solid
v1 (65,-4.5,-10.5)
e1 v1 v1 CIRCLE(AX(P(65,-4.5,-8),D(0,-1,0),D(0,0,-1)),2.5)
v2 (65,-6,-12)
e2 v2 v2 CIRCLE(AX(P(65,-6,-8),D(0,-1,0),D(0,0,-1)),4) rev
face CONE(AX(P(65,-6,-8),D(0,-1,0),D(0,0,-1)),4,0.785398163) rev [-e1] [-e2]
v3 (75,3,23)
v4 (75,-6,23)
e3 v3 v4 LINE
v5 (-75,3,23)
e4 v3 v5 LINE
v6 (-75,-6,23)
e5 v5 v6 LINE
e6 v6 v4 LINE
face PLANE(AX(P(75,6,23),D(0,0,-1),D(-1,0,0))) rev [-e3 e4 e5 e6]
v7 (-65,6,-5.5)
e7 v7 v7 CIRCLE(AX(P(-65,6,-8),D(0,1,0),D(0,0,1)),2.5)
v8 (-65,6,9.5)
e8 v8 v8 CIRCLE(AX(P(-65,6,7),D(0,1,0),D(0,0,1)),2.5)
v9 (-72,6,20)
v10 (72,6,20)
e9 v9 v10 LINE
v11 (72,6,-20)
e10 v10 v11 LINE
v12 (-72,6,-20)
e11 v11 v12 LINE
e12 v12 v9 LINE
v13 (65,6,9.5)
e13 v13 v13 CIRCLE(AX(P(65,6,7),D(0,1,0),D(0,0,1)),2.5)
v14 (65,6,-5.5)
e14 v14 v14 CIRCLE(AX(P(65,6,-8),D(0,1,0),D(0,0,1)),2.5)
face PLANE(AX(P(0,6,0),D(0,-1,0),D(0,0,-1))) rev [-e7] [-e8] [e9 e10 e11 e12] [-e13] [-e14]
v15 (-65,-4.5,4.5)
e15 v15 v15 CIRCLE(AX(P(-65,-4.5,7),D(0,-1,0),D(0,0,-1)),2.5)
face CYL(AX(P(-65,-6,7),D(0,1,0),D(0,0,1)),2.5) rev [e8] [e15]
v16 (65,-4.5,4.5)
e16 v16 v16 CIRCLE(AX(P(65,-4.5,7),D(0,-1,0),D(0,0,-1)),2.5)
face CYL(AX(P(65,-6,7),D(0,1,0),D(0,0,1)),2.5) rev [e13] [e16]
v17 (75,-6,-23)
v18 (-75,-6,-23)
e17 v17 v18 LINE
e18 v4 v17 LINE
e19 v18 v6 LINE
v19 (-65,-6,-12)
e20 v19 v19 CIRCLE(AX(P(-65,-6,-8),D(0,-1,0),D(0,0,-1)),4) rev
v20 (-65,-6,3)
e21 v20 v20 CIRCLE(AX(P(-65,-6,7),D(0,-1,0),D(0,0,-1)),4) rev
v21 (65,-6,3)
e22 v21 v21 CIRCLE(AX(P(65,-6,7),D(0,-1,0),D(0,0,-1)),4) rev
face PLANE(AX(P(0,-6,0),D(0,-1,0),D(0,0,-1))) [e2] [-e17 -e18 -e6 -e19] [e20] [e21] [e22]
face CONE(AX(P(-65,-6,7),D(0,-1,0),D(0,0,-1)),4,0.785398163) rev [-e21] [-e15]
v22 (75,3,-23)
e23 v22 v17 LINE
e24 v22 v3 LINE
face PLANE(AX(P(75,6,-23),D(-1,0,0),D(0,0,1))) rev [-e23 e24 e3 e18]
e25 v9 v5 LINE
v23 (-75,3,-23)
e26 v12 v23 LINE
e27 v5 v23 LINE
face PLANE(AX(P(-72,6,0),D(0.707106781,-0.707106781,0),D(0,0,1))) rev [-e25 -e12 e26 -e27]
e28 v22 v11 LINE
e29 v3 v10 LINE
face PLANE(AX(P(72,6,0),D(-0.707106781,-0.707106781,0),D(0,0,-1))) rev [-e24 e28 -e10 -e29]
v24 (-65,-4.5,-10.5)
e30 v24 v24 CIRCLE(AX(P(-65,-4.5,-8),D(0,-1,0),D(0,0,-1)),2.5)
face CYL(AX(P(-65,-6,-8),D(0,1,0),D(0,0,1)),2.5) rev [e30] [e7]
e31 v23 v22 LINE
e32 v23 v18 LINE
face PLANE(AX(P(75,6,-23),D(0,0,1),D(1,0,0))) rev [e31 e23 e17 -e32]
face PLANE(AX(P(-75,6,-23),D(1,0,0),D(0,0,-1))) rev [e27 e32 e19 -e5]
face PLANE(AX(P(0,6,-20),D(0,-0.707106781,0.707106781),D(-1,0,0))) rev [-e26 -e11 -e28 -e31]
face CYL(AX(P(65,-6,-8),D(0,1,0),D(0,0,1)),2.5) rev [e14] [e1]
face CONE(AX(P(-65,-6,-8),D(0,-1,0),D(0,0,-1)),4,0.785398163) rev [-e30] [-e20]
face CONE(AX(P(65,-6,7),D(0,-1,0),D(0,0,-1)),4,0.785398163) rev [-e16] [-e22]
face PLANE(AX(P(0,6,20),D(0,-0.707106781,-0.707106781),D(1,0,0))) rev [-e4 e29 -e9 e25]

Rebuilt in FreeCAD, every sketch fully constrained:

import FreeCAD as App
import Part
import Sketcher

V = App.Vector


def edges_at(feature, points):
    """Names of the edges that pass closest to the given points."""
    edges = feature.Shape.Edges
    near = lambda p: min(range(len(edges)), key=lambda i: edges[i].distToShape(Part.Vertex(*p))[0])
    return sorted({f"Edge{near(p) + 1}" for p in points})

doc = App.newDocument("Part")
params = doc.addObject("Spreadsheet::Sheet", "Params")
for row, (alias, value) in enumerate([
    ("sketch1_width", "150 mm"),
    ("sketch1_height", "46 mm"),
    ("pad1_length", "12 mm"),
    ("chamfer_size", "3 mm"),
    ("sketch2_diameter", "5 mm"),
    ("chamfer2_size", "1.5 mm"),
], start=1):
    params.set(f"A{row}", alias)
    params.set(f"B{row}", "=" + value)
    params.setAlias(f"B{row}", alias)

body = doc.addObject("PartDesign::Body", "Body")

sketch1 = doc.addObject("Sketcher::SketchObject", "Sketch")
body.addObject(sketch1)
sketch1.AttachmentSupport = (doc.XZ_Plane, [""])
sketch1.MapMode = "FlatFace"
sketch1.addGeometry([
    Part.LineSegment(V(-75, -23, 0), V(-75, 23, 0)),
    Part.LineSegment(V(-75, 23, 0), V(75, 23, 0)),
    Part.LineSegment(V(75, 23, 0), V(75, -23, 0)),
    Part.LineSegment(V(75, -23, 0), V(-75, -23, 0)),
], False)
sketch1.addConstraint([
    Sketcher.Constraint("Coincident", 0, 2, 1, 1),
    Sketcher.Constraint("Coincident", 1, 2, 2, 1),
    Sketcher.Constraint("Coincident", 2, 2, 3, 1),
    Sketcher.Constraint("Coincident", 3, 2, 0, 1),
    Sketcher.Constraint("Vertical", 0),
    Sketcher.Constraint("Horizontal", 1),
    Sketcher.Constraint("Vertical", 2),
    Sketcher.Constraint("Horizontal", 3),
    Sketcher.Constraint("Symmetric", 0, 2, 2, 2, -1, 1),
    Sketcher.Constraint("DistanceX", 1, 1, 1, 2, 150.0),
    Sketcher.Constraint("DistanceY", 0, 1, 0, 2, 46.0),
])
sketch1.setExpression("Constraints[9]", "Params.sketch1_width")
sketch1.setExpression("Constraints[10]", "Params.sketch1_height")
pad1 = doc.addObject("PartDesign::Pad", "Pad")
body.addObject(pad1)
pad1.Profile = sketch1
pad1.setExpression("Length", "Params.pad1_length")
pad1.Midplane = True
doc.recompute()

chamfer = doc.addObject("PartDesign::Chamfer", "Chamfer")
body.addObject(chamfer)
chamfer.Base = (pad1, edges_at(pad1, [
    (-75, 6, 0),
    (0, 6, 23),
    (75, 6, 0),
    (0, 6, -23),
]))
chamfer.setExpression("Size", "Params.chamfer_size")

sketch2 = doc.addObject("Sketcher::SketchObject", "Sketch001")
body.addObject(sketch2)
sketch2.AttachmentSupport = (doc.XZ_Plane, [""])
sketch2.MapMode = "FlatFace"
sketch2.AttachmentOffset = App.Placement(V(0, 0, -6), App.Rotation())
sketch2.addGeometry([
    Part.Circle(V(-65, -8, 0), V(0, 0, 1), 2.5),
    Part.Circle(V(-65, 7, 0), V(0, 0, 1), 2.5),
    Part.Circle(V(65, -8, 0), V(0, 0, 1), 2.5),
    Part.Circle(V(65, 7, 0), V(0, 0, 1), 2.5),
], False)
sketch2.addConstraint([
    Sketcher.Constraint("Equal", 0, 1),
    Sketcher.Constraint("Equal", 1, 2),
    Sketcher.Constraint("Equal", 2, 3),
    Sketcher.Constraint("Symmetric", 0, 3, 2, 3, -2),
    Sketcher.Constraint("Symmetric", 1, 3, 3, 3, -2),
    Sketcher.Constraint("Vertical", 0, 3, 1, 3),
    Sketcher.Constraint("Diameter", 0, 5.0),
    Sketcher.Constraint("DistanceX", 0, 3, -1, 1, 65.0),
    Sketcher.Constraint("DistanceY", 0, 3, -1, 1, 8.0),
    Sketcher.Constraint("DistanceY", -1, 1, 1, 3, 7.0),
])
sketch2.setExpression("Constraints[6]", "Params.sketch2_diameter")
pocket1 = doc.addObject("PartDesign::Pocket", "Pocket")
body.addObject(pocket1)
pocket1.Profile = sketch2
pocket1.Type = "ThroughAll"
pocket1.Reversed = True
doc.recompute()

chamfer2 = doc.addObject("PartDesign::Chamfer", "Chamfer001")
body.addObject(chamfer2)
chamfer2.Base = (pocket1, edges_at(pocket1, [
    (-65, -6, 4.5),
    (65, -6, -10.5),
    (65, -6, 4.5),
    (-65, -6, -10.5),
]))
chamfer2.setExpression("Size", "Params.chamfer2_size")

doc.recompute()
